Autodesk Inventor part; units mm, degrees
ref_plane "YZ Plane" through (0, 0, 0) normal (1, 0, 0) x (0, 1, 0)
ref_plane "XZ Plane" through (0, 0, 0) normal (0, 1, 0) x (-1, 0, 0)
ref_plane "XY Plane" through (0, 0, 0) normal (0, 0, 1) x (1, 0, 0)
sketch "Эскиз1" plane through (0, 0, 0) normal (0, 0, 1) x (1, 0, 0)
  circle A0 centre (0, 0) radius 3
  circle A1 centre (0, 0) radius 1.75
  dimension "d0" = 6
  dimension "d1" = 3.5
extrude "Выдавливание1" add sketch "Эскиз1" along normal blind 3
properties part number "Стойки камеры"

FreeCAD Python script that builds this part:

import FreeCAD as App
import Part
import Sketcher

V = App.Vector

doc = App.newDocument("Part")
body = doc.addObject("PartDesign::Body", "Body")

# Sketch on XY plane
sketch1 = body.newObject("Sketcher::SketchObject", "Sketch")
sketch1.AttachmentSupport = (doc.getObject("XY_Plane"), [""])
sketch1.MapMode = "FlatFace"
sketch1.addGeometry([
    Part.Circle(V(0, 0, 0), V(0, 0, 1), 3),
    Part.Circle(V(0, 0, 0), V(0, 0, 1), 1.8),
], False)
sketch1.addConstraint([
    Sketcher.Constraint("Coincident", 0, 3, -1, 1),
    Sketcher.Constraint("Coincident", 1, 3, -1, 1),
    Sketcher.Constraint("Diameter", 0, 6.0),
    Sketcher.Constraint("Diameter", 1, 3.5),
])
pad1 = body.newObject("PartDesign::Pad", "Pad")
pad1.Profile = sketch1
pad1.Length = 3

doc.recompute()
